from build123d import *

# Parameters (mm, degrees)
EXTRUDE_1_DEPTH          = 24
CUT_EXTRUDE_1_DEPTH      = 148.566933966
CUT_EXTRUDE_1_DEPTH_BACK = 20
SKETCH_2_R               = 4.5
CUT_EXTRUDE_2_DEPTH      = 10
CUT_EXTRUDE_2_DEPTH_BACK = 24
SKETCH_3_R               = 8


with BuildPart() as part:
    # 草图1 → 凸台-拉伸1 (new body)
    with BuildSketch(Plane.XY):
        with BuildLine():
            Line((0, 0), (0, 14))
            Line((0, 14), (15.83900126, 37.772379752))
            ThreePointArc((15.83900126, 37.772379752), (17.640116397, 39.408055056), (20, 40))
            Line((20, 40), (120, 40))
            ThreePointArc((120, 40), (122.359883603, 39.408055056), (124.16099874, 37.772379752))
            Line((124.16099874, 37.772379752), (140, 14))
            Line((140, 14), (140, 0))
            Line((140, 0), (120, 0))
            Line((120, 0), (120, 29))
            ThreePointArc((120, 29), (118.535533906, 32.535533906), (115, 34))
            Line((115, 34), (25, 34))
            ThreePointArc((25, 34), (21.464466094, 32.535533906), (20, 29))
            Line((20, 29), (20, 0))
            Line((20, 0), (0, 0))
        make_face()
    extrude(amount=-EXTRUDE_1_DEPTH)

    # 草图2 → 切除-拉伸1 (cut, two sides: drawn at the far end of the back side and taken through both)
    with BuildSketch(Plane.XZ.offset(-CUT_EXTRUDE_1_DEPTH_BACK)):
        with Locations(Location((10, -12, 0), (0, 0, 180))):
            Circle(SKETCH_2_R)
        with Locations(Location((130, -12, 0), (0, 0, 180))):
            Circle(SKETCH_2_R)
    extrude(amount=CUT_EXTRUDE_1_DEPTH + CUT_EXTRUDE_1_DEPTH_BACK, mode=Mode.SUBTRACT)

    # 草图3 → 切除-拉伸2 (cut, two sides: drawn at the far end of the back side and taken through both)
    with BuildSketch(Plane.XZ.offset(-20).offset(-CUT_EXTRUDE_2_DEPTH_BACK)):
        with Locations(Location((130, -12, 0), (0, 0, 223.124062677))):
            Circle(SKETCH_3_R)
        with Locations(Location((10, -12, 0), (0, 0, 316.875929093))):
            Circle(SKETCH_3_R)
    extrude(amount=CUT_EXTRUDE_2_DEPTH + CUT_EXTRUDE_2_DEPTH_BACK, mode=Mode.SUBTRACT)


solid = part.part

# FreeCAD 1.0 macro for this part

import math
import FreeCAD as App
import Part
import Sketcher
from FreeCAD import Vector

doc = App.newDocument("Part")
body = doc.addObject("PartDesign::Body", "Body")

# Sketch on XY plane
sketch1 = body.newObject("Sketcher::SketchObject", "Sketch")
sketch1.AttachmentSupport = (doc.getObject("XY_Plane"), [""])
sketch1.MapMode = "FlatFace"
sketch1.addGeometry([
    Part.LineSegment(Vector(0, 14, 0), Vector(0, 0, 0)),  # 0
    Part.LineSegment(Vector(0, 0, 0), Vector(20, 0, 0)),  # 1
    Part.LineSegment(Vector(20, 0, 0), Vector(20, 29, 0)),  # 2
    Part.ArcOfCircle(Part.Circle(Vector(25, 29, 0), Vector(0, 0, 1), 5), math.radians(90), math.radians(180)),  # 3
    Part.LineSegment(Vector(25, 34, 0), Vector(115, 34, 0)),  # 4
    Part.ArcOfCircle(Part.Circle(Vector(115, 29, 0), Vector(0, 0, 1), 5), math.radians(0), math.radians(90)),  # 5
    Part.LineSegment(Vector(120, 29, 0), Vector(120, 0, 0)),  # 6
    Part.LineSegment(Vector(120, 0, 0), Vector(140, 0, 0)),  # 7
    Part.LineSegment(Vector(140, 0, 0), Vector(140, 14, 0)),  # 8
    Part.LineSegment(Vector(140, 14, 0), Vector(124.160999, 37.77238, 0)),  # 9
    Part.ArcOfCircle(Part.Circle(Vector(120, 35, 0), Vector(0, 0, 1), 5), math.radians(33.674627), math.radians(90)),  # 10
    Part.LineSegment(Vector(120, 40, 0), Vector(20, 40, 0)),  # 11
    Part.ArcOfCircle(Part.Circle(Vector(20, 35, 0), Vector(0, 0, 1), 5), math.radians(90), math.radians(146.325373)),  # 12
    Part.LineSegment(Vector(15.839001, 37.77238, 0), Vector(0, 14, 0)),  # 13
], False)
sketch1.addConstraint([
    Sketcher.Constraint("Coincident", 0, 2, 1, 1),
    Sketcher.Constraint("Coincident", 1, 2, 2, 1),
    Sketcher.Constraint("Tangent", 2, 2, 3, 2),
    Sketcher.Constraint("Tangent", 3, 1, 4, 1),
    Sketcher.Constraint("Tangent", 4, 2, 5, 2),
    Sketcher.Constraint("Tangent", 5, 1, 6, 1),
    Sketcher.Constraint("Coincident", 6, 2, 7, 1),
    Sketcher.Constraint("Coincident", 7, 2, 8, 1),
    Sketcher.Constraint("Coincident", 8, 2, 9, 1),
    Sketcher.Constraint("Tangent", 9, 2, 10, 1),
    Sketcher.Constraint("Tangent", 10, 2, 11, 1),
    Sketcher.Constraint("Tangent", 11, 2, 12, 1),
    Sketcher.Constraint("Tangent", 12, 2, 13, 1),
    Sketcher.Constraint("Coincident", 13, 2, 0, 1),
    Sketcher.Constraint("Vertical", 0),
    Sketcher.Constraint("Horizontal", 1),
    Sketcher.Constraint("Vertical", 2),
    Sketcher.Constraint("Horizontal", 4),
    Sketcher.Constraint("Vertical", 6),
    Sketcher.Constraint("Horizontal", 7),
    Sketcher.Constraint("Vertical", 8),
    Sketcher.Constraint("Horizontal", 11),
    Sketcher.Constraint("Coincident", 0, 2, -1, 1),
    Sketcher.Constraint("Equal", 3, 5),
    Sketcher.Constraint("Equal", 5, 10),
    Sketcher.Constraint("Equal", 10, 12),
    Sketcher.Constraint("PointOnObject", 6, 2, -1),
    Sketcher.Constraint("Horizontal", 9, 2, 12, 2),
    Sketcher.Constraint("Horizontal", 8, 2, 13, 2),
    Sketcher.Constraint("Vertical", 12, 3, 1, 2),
    Sketcher.Constraint("Vertical", 10, 3, 5, 1),
    Sketcher.Constraint("Radius", 3, 5.0),
    Sketcher.Constraint("DistanceX", 1, 1, 1, 2, 20.0),
    Sketcher.Constraint("DistanceX", 4, 1, 4, 2, 90.0),
    Sketcher.Constraint("DistanceY", 0, 2, 0, 1, 14.0),
    Sketcher.Constraint("DistanceY", 2, 1, 2, 2, 29.0),
    Sketcher.Constraint("DistanceY", -1, 1, 10, 3, 35.0),
])
pad1 = body.newObject("PartDesign::Pad", "Pad")
pad1.Profile = sketch1
pad1.Length = 24
pad1.Reversed = True

# Sketch on XZ plane
sketch2 = body.newObject("Sketcher::SketchObject", "Sketch001")
sketch2.AttachmentSupport = (doc.getObject("XZ_Plane"), [""])
sketch2.MapMode = "FlatFace"
sketch2.addGeometry([
    Part.Circle(Vector(10, -12, 0), Vector(0, 0, 1), 4.5),
    Part.Circle(Vector(130, -12, 0), Vector(0, 0, 1), 4.5),
], False)
sketch2.addConstraint([
    Sketcher.Constraint("Equal", 0, 1),
    Sketcher.Constraint("Horizontal", 0, 3, 1, 3),
    Sketcher.Constraint("Diameter", 0, 9.0),
    Sketcher.Constraint("DistanceX", -1, 1, 0, 3, 10.0),
    Sketcher.Constraint("DistanceY", 0, 3, -1, 1, 12.0),
    Sketcher.Constraint("DistanceX", -1, 1, 1, 3, 130.0),
])
pocket1 = body.newObject("PartDesign::Pocket", "Pocket")
pocket1.Profile = sketch2
pocket1.Type = "TwoLengths"
pocket1.Length = 148.566934
pocket1.Length2 = 20
pocket1.Reversed = True

# Sketch on XZ plane
sketch3 = body.newObject("Sketcher::SketchObject", "Sketch002")
sketch3.AttachmentSupport = (doc.getObject("XZ_Plane"), [""])
sketch3.MapMode = "FlatFace"
sketch3.AttachmentOffset = App.Placement(Vector(0, 0, -20), App.Rotation())
sketch3.addGeometry([
    Part.Circle(Vector(130, -12, 0), Vector(0, 0, 1), 8),
    Part.Circle(Vector(10, -12, 0), Vector(0, 0, 1), 8),
], False)
sketch3.addConstraint([
    Sketcher.Constraint("Equal", 0, 1),
    Sketcher.Constraint("Horizontal", 0, 3, 1, 3),
    Sketcher.Constraint("Diameter", 0, 16.0),
    Sketcher.Constraint("DistanceX", -1, 1, 0, 3, 130.0),
    Sketcher.Constraint("DistanceY", 0, 3, -1, 1, 12.0),
    Sketcher.Constraint("DistanceX", -1, 1, 1, 3, 10.0),
])
pocket2 = body.newObject("PartDesign::Pocket", "Pocket001")
pocket2.Profile = sketch3
pocket2.Type = "TwoLengths"
pocket2.Length = 10
pocket2.Length2 = 24
pocket2.Reversed = True

doc.recompute()
